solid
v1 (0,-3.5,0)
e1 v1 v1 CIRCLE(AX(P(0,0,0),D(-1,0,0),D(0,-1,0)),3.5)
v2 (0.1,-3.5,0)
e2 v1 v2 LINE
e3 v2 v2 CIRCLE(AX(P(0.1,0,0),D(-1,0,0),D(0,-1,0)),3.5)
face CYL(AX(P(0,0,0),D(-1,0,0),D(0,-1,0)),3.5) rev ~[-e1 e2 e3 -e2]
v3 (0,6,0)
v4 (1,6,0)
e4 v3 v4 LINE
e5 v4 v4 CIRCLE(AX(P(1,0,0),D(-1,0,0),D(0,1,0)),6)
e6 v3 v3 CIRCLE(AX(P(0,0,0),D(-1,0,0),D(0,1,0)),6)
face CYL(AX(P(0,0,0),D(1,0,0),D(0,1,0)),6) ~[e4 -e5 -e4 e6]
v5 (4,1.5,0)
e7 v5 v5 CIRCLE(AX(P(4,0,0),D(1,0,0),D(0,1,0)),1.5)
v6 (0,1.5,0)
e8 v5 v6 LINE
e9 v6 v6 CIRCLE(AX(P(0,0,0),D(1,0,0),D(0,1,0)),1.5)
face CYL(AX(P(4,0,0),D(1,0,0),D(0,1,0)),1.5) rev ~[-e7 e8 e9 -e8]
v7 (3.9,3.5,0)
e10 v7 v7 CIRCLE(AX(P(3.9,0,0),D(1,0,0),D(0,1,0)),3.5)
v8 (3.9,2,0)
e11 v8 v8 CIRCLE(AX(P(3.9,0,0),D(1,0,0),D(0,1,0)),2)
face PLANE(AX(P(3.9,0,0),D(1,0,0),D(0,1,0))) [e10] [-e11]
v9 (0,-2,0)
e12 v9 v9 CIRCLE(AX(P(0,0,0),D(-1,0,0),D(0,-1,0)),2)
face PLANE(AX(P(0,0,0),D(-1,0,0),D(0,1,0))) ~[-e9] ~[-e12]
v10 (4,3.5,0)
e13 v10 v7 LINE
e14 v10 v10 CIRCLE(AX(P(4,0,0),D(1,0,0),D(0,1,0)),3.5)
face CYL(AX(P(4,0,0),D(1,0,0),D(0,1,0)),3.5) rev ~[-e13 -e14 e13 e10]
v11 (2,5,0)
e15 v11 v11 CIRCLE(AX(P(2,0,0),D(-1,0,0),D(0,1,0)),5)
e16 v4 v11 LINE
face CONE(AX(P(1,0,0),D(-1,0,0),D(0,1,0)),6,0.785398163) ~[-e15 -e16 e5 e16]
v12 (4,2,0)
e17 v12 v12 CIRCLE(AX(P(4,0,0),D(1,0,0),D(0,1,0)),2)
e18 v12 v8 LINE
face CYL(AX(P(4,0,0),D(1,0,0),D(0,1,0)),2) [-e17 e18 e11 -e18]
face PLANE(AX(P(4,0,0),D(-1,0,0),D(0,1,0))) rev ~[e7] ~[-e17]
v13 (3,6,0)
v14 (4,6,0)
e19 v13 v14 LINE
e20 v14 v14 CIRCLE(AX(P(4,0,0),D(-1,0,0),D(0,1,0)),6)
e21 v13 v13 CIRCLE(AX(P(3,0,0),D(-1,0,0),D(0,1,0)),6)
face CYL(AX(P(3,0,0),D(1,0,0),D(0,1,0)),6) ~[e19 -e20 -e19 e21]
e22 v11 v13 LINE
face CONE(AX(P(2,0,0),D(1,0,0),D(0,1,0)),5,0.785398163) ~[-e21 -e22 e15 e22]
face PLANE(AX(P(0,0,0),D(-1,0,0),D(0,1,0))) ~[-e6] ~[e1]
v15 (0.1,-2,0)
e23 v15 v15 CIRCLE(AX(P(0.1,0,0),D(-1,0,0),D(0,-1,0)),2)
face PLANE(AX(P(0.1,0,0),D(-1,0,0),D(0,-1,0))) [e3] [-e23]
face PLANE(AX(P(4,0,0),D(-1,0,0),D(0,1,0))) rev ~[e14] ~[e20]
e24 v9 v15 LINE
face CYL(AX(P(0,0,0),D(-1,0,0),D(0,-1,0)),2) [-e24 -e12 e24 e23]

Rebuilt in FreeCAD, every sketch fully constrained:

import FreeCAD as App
import Part
import Sketcher
Q = App.Units.Quantity

doc = App.newDocument("Part")
body = doc.addObject("PartDesign::Body", "Body")

# Sketch on XY plane
sketch1 = doc.addObject("Sketcher::SketchObject", "Sketch")
body.addObject(sketch1)
sketch1.AttachmentSupport = (doc.XY_Plane, [""])
sketch1.MapMode = "FlatFace"
sketch1.addGeometry(Part.LineSegment(App.Vector(0, 6, 0), App.Vector(0, 0, 0)), False)
sketch1.addGeometry(Part.LineSegment(App.Vector(0, 0, 0), App.Vector(4, 0, 0)), False)
sketch1.addGeometry(Part.LineSegment(App.Vector(4, 0, 0), App.Vector(4, 6, 0)), False)
sketch1.addGeometry(Part.LineSegment(App.Vector(4, 6, 0), App.Vector(3, 6, 0)), False)
sketch1.addGeometry(Part.LineSegment(App.Vector(3, 6, 0), App.Vector(2, 5, 0)), False)
sketch1.addGeometry(Part.LineSegment(App.Vector(2, 5, 0), App.Vector(1, 6, 0)), False)
sketch1.addGeometry(Part.LineSegment(App.Vector(1, 6, 0), App.Vector(0, 6, 0)), False)
sketch1.addConstraint(Sketcher.Constraint("Coincident", 0, 2, 1, 1))
sketch1.addConstraint(Sketcher.Constraint("Coincident", 1, 2, 2, 1))
sketch1.addConstraint(Sketcher.Constraint("Coincident", 2, 2, 3, 1))
sketch1.addConstraint(Sketcher.Constraint("Coincident", 3, 2, 4, 1))
sketch1.addConstraint(Sketcher.Constraint("Coincident", 4, 2, 5, 1))
sketch1.addConstraint(Sketcher.Constraint("Coincident", 5, 2, 6, 1))
sketch1.addConstraint(Sketcher.Constraint("Coincident", 6, 2, 0, 1))
sketch1.addConstraint(Sketcher.Constraint("Vertical", 0))
sketch1.addConstraint(Sketcher.Constraint("Horizontal", 1))
sketch1.addConstraint(Sketcher.Constraint("Vertical", 2))
sketch1.addConstraint(Sketcher.Constraint("Horizontal", 3))
sketch1.addConstraint(Sketcher.Constraint("Horizontal", 6))
sketch1.addConstraint(Sketcher.Constraint("Coincident", 0, 2, -1, 1))
sketch1.addConstraint(Sketcher.Constraint("Perpendicular", 4, 5))
sketch1.addConstraint(Sketcher.Constraint("Horizontal", 3, 2, 5, 2))
sketch1.addConstraint(Sketcher.Constraint("Equal", 3, 6))
sketch1.addConstraint(Sketcher.Constraint("Equal", 4, 5))
sketch1.addConstraint(Sketcher.Constraint("DistanceX", 1, 1, 1, 2, Q("4 mm")))
sketch1.addConstraint(Sketcher.Constraint("DistanceX", 3, 2, 3, 1, Q("1 mm")))
sketch1.addConstraint(Sketcher.Constraint("DistanceY", 0, 2, 0, 1, Q("6 mm")))
revolution = doc.addObject("PartDesign::Revolution", "Revolution")
body.addObject(revolution)
revolution.Profile = sketch1
revolution.ReferenceAxis = (sketch1, ["H_Axis"])
revolution.Angle = 360

# Sketch on YZ plane
sketch2 = doc.addObject("Sketcher::SketchObject", "Sketch001")
body.addObject(sketch2)
sketch2.AttachmentSupport = (doc.YZ_Plane, [""])
sketch2.MapMode = "FlatFace"
sketch2.AttachmentOffset = App.Placement(App.Vector(0, 0, 4), App.Rotation())
sketch2.addGeometry(Part.Circle(App.Vector(0, 0, 0), App.Vector(0, 0, 1), 1.5), False)
sketch2.addConstraint(Sketcher.Constraint("Coincident", 0, 3, -1, 1))
sketch2.addConstraint(Sketcher.Constraint("Diameter", 0, Q("3 mm")))
pocket1 = doc.addObject("PartDesign::Pocket", "Pocket")
body.addObject(pocket1)
pocket1.Profile = sketch2
pocket1.Type = "ThroughAll"

# Sketch on YZ plane
sketch3 = doc.addObject("Sketcher::SketchObject", "Sketch002")
body.addObject(sketch3)
sketch3.AttachmentSupport = (doc.YZ_Plane, [""])
sketch3.MapMode = "FlatFace"
sketch3.AttachmentOffset = App.Placement(App.Vector(0, 0, 4), App.Rotation())
sketch3.addGeometry(Part.Circle(App.Vector(0, 0, 0), App.Vector(0, 0, 1), 3.5), False)
sketch3.addGeometry(Part.Circle(App.Vector(0, 0, 0), App.Vector(0, 0, 1), 2), False)
sketch3.addConstraint(Sketcher.Constraint("Coincident", 0, 3, -1, 1))
sketch3.addConstraint(Sketcher.Constraint("Coincident", 1, 3, -1, 1))
sketch3.addConstraint(Sketcher.Constraint("Diameter", 0, Q("7 mm")))
sketch3.addConstraint(Sketcher.Constraint("Diameter", 1, Q("4 mm")))
pocket2 = doc.addObject("PartDesign::Pocket", "Pocket001")
body.addObject(pocket2)
pocket2.Profile = sketch3
pocket2.Length = 0.1

# Sketch on YZ plane
sketch4 = doc.addObject("Sketcher::SketchObject", "Sketch003")
body.addObject(sketch4)
sketch4.AttachmentSupport = (doc.YZ_Plane, [""])
sketch4.MapMode = "FlatFace"
sketch4.addGeometry(Part.Circle(App.Vector(0, 0, 0), App.Vector(0, 0, 1), 3.5), False)
sketch4.addGeometry(Part.Circle(App.Vector(0, 0, 0), App.Vector(0, 0, 1), 2), False)
sketch4.addConstraint(Sketcher.Constraint("Coincident", 0, 3, -1, 1))
sketch4.addConstraint(Sketcher.Constraint("Coincident", 1, 3, -1, 1))
sketch4.addConstraint(Sketcher.Constraint("Diameter", 0, Q("7 mm")))
sketch4.addConstraint(Sketcher.Constraint("Diameter", 1, Q("4 mm")))
pocket3 = doc.addObject("PartDesign::Pocket", "Pocket002")
body.addObject(pocket3)
pocket3.Profile = sketch4
pocket3.Length = 0.1
pocket3.Reversed = True

doc.recompute()
